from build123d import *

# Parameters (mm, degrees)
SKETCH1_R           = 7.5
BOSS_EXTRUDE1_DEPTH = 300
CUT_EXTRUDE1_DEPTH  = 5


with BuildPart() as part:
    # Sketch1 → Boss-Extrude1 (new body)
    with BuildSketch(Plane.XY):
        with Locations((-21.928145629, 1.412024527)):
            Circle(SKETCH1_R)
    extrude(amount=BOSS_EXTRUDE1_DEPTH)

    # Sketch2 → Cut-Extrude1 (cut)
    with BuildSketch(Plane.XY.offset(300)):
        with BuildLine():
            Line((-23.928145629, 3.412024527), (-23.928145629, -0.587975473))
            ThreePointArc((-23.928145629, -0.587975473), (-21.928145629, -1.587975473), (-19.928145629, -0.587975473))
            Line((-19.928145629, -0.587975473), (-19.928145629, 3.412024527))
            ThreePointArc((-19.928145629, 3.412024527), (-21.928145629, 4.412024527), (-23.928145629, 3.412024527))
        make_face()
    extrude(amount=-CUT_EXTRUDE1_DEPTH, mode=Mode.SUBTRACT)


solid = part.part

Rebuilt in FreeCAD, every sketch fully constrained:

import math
import FreeCAD as App
import Part
import Sketcher

doc = App.newDocument("Part")
body = doc.addObject("PartDesign::Body", "Body")

# Sketch on XY plane
sketch1 = body.newObject("Sketcher::SketchObject", "Sketch")
sketch1.AttachmentSupport = (doc.getObject("XY_Plane"), [""])
sketch1.MapMode = "FlatFace"
sketch1.addGeometry(Part.Circle(App.Vector(-21.928146, 1.412025, 0), App.Vector(0, 0, 1), 7.5), False)
sketch1.addConstraint([
    Sketcher.Constraint("Diameter", 0, 15.0),
    Sketcher.Constraint("DistanceX", 0, 3, -1, 1, 21.928146),
    Sketcher.Constraint("DistanceY", -1, 1, 0, 3, 1.412025),
])
pad1 = body.newObject("PartDesign::Pad", "Pad")
pad1.Profile = sketch1
pad1.Length = 300

# Sketch on XY plane
sketch2 = body.newObject("Sketcher::SketchObject", "Sketch001")
sketch2.AttachmentSupport = (doc.getObject("XY_Plane"), [""])
sketch2.MapMode = "FlatFace"
sketch2.AttachmentOffset = App.Placement(App.Vector(0, 0, 300), App.Rotation())
sketch2.addGeometry([
    Part.LineSegment(App.Vector(-23.928146, 3.412025, 0), App.Vector(-23.928146, -0.587975, 0)),
    Part.ArcOfCircle(Part.Circle(App.Vector(-21.928146, 0.912025, 0), App.Vector(0, 0, 1), 2.5), math.radians(-143.130102), math.radians(-36.869898)),
    Part.LineSegment(App.Vector(-19.928146, -0.587975, 0), App.Vector(-19.928146, 3.412025, 0)),
    Part.ArcOfCircle(Part.Circle(App.Vector(-21.928146, 1.912025, 0), App.Vector(0, 0, 1), 2.5), math.radians(36.869898), math.radians(143.130102)),
], False)
sketch2.addConstraint([
    Sketcher.Constraint("Coincident", 0, 2, 1, 1),
    Sketcher.Constraint("Coincident", 1, 2, 2, 1),
    Sketcher.Constraint("Coincident", 2, 2, 3, 1),
    Sketcher.Constraint("Coincident", 3, 2, 0, 1),
    Sketcher.Constraint("Vertical", 0),
    Sketcher.Constraint("Vertical", 2),
    Sketcher.Constraint("Equal", 1, 3),
    Sketcher.Constraint("Horizontal", 0, 2, 1, 2),
    Sketcher.Constraint("Horizontal", 2, 2, 3, 2),
    Sketcher.Constraint("Radius", 1, 2.5),
    Sketcher.Constraint("DistanceY", 0, 2, 0, 1, 4.0),
    Sketcher.Constraint("DistanceY", 1, 3, 3, 3, 1.0),
    Sketcher.Constraint("DistanceX", 1, 3, -1, 1, 21.928146),
    Sketcher.Constraint("DistanceY", -1, 1, 1, 3, 0.912025),
])
pocket1 = body.newObject("PartDesign::Pocket", "Pocket")
pocket1.Profile = sketch2
pocket1.Length = 5

doc.recompute()
